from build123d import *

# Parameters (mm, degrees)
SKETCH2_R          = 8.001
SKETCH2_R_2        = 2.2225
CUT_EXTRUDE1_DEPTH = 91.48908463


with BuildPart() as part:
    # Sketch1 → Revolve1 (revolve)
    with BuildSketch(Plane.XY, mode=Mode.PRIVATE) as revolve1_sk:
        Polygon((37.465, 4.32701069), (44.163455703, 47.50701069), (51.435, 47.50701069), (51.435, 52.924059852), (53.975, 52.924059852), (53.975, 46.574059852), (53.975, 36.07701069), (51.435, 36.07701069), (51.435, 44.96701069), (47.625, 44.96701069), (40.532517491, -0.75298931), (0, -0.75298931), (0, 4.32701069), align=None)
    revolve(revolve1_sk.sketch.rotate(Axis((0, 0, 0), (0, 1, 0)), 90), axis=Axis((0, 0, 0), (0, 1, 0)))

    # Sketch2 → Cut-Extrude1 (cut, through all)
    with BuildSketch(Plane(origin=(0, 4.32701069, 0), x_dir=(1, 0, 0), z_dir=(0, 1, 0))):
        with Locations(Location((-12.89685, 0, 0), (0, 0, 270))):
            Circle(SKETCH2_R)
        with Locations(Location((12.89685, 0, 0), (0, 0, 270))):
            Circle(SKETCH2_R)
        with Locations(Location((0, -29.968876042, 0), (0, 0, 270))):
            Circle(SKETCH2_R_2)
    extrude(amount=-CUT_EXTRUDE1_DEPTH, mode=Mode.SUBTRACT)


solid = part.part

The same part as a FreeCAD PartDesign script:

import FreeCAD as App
import Part
import Sketcher
from FreeCAD import Vector
Q = App.Units.Quantity

doc = App.newDocument("Part")
body = doc.addObject("PartDesign::Body", "Body")

# Sketch on XY plane
sketch1 = body.newObject("Sketcher::SketchObject", "Sketch")
sketch1.AttachmentSupport = (doc.getObject("XY_Plane"), [""])
sketch1.MapMode = "FlatFace"
sketch1.addGeometry([
    Part.LineSegment(Vector(44.2, 47.5, 0), Vector(37.5, 4.3, 0)),  # 0
    Part.LineSegment(Vector(37.5, 4.3, 0), Vector(0, 4.3, 0)),  # 1
    Part.LineSegment(Vector(0, 4.3, 0), Vector(0, -0.8, 0)),  # 2
    Part.LineSegment(Vector(0, -0.8, 0), Vector(40.5, -0.8, 0)),  # 3
    Part.LineSegment(Vector(40.5, -0.8, 0), Vector(47.6, 45, 0)),  # 4
    Part.LineSegment(Vector(47.6, 45, 0), Vector(51.4, 45, 0)),  # 5
    Part.LineSegment(Vector(51.4, 45, 0), Vector(51.4, 36.1, 0)),  # 6
    Part.LineSegment(Vector(51.4, 36.1, 0), Vector(54, 36.1, 0)),  # 7
    Part.LineSegment(Vector(54, 36.1, 0), Vector(54, 52.9, 0)),  # 8
    Part.LineSegment(Vector(54, 52.9, 0), Vector(51.4, 52.9, 0)),  # 9
    Part.LineSegment(Vector(51.4, 52.9, 0), Vector(51.4, 47.5, 0)),  # 10
    Part.LineSegment(Vector(51.4, 47.5, 0), Vector(44.2, 47.5, 0)),  # 11
], False)
sketch1.addConstraint([
    Sketcher.Constraint("Coincident", 0, 2, 1, 1),
    Sketcher.Constraint("Coincident", 1, 2, 2, 1),
    Sketcher.Constraint("Coincident", 2, 2, 3, 1),
    Sketcher.Constraint("Coincident", 3, 2, 4, 1),
    Sketcher.Constraint("Coincident", 4, 2, 5, 1),
    Sketcher.Constraint("Coincident", 5, 2, 6, 1),
    Sketcher.Constraint("Coincident", 6, 2, 7, 1),
    Sketcher.Constraint("Coincident", 7, 2, 8, 1),
    Sketcher.Constraint("Coincident", 8, 2, 9, 1),
    Sketcher.Constraint("Coincident", 9, 2, 10, 1),
    Sketcher.Constraint("Coincident", 10, 2, 11, 1),
    Sketcher.Constraint("Coincident", 11, 2, 0, 1),
    Sketcher.Constraint("Horizontal", 1),
    Sketcher.Constraint("Vertical", 2),
    Sketcher.Constraint("Horizontal", 3),
    Sketcher.Constraint("Horizontal", 5),
    Sketcher.Constraint("Vertical", 6),
    Sketcher.Constraint("Horizontal", 7),
    Sketcher.Constraint("Vertical", 8),
    Sketcher.Constraint("Horizontal", 9),
    Sketcher.Constraint("Vertical", 10),
    Sketcher.Constraint("Horizontal", 11),
    Sketcher.Constraint("PointOnObject", 1, 2, -2),
    Sketcher.Constraint("Parallel", 0, 4),
    Sketcher.Constraint("Vertical", 6, 2, 9, 2),
    Sketcher.Constraint("DistanceX", 7, 1, 7, 2, Q("0.1 in")),
    Sketcher.Constraint("DistanceY", 2, 2, 2, 1, Q("0.2 in")),
    Sketcher.Constraint("DistanceX", 5, 1, 5, 2, Q("0.15 in")),
    Sketcher.Constraint("DistanceY", 6, 2, 6, 1, Q("0.35 in")),
    Sketcher.Constraint("DistanceX", 0, 2, 4, 2, Q("0.4 in")),
    Sketcher.Constraint("DistanceY", 0, 2, 4, 2, Q("1.6 in")),
    Sketcher.Constraint("DistanceY", 5, 2, 10, 2, Q("0.1 in")),
    Sketcher.Constraint("DistanceX", 1, 2, 1, 1, Q("1.475 in")),
    Sketcher.Constraint("DistanceY", 8, 1, 8, 2, 16.847049),
    Sketcher.Constraint("DistanceX", 3, 1, 3, 2, 40.532517),
    Sketcher.Constraint("DistanceY", -1, 1, 0, 2, 4.327011),
])
revolution = body.newObject("PartDesign::Revolution", "Revolution")
revolution.Profile = sketch1
revolution.ReferenceAxis = (sketch1, ["V_Axis"])
revolution.Angle = 360

# Sketch on XZ plane
sketch2 = body.newObject("Sketcher::SketchObject", "Sketch001")
sketch2.AttachmentSupport = (doc.getObject("XZ_Plane"), [""])
sketch2.MapMode = "FlatFace"
sketch2.AttachmentOffset = App.Placement(Vector(0, 0, -4.327011), App.Rotation())
sketch2.addGeometry([
    Part.Circle(Vector(-12.9, 0, 0), Vector(0, 0, 1), 8),
    Part.Circle(Vector(12.9, 0, 0), Vector(0, 0, 1), 8),
    Part.Circle(Vector(0, 30, 0), Vector(0, 0, 1), 2.2),
], False)
sketch2.addConstraint([
    Sketcher.Constraint("Equal", 0, 1),
    Sketcher.Constraint("Symmetric", 0, 3, 1, 3, -1, 1),
    Sketcher.Constraint("PointOnObject", 0, 3, -1),
    Sketcher.Constraint("PointOnObject", 2, 3, -2),
    Sketcher.Constraint("Diameter", 0, Q("0.63 in")),
    Sketcher.Constraint("Diameter", 2, Q("0.175 in")),
    Sketcher.Constraint("DistanceX", 0, 3, 1, 3, Q("1.0155 in")),
    Sketcher.Constraint("DistanceY", -1, 1, 2, 3, 29.968876),
])
pocket1 = body.newObject("PartDesign::Pocket", "Pocket")
pocket1.Profile = sketch2
pocket1.Type = "ThroughAll"
pocket1.Reversed = True

doc.recompute()
